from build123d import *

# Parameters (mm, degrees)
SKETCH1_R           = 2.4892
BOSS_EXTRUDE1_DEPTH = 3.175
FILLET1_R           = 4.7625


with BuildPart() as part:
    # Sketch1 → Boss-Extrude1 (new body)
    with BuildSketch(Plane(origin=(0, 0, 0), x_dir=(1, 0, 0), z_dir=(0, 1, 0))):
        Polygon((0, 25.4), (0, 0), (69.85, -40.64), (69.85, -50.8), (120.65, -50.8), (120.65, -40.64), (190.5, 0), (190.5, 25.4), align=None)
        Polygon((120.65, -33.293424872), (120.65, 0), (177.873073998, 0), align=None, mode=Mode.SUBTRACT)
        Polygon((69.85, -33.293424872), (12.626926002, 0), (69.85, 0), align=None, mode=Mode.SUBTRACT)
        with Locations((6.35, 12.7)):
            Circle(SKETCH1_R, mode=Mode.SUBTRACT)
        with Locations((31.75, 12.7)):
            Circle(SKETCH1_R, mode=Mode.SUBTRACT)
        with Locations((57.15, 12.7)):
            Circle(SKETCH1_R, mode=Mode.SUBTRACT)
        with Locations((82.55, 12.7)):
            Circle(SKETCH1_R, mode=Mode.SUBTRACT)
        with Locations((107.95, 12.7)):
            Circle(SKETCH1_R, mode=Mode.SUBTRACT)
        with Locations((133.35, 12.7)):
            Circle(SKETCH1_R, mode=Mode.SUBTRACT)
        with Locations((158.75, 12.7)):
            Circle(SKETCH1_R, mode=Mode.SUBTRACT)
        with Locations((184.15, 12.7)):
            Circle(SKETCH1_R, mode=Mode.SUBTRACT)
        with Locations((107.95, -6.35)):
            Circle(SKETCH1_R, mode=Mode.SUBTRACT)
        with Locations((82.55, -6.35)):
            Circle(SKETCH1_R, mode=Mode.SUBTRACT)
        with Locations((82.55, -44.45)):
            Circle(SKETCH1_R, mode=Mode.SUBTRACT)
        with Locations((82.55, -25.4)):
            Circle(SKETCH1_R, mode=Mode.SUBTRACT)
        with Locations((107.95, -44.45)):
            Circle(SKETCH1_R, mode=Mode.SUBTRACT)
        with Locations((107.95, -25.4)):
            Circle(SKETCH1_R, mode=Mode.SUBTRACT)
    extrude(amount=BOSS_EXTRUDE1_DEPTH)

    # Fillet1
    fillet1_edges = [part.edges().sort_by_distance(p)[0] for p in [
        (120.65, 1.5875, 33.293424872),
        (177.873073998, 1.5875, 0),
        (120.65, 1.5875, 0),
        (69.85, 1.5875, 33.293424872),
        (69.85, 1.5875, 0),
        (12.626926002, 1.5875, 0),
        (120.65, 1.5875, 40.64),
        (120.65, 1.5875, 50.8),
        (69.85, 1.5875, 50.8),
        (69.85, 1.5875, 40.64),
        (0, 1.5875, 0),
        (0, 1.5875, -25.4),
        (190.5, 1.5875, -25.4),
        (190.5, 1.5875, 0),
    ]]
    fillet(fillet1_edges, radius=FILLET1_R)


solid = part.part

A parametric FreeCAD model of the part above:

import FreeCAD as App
import Part
import Sketcher

V = App.Vector
Q = App.Units.Quantity


def edges_at(feature, points):
    """Names of the edges that pass closest to the given points."""
    edges = feature.Shape.Edges
    near = lambda p: min(range(len(edges)), key=lambda i: edges[i].distToShape(Part.Vertex(*p))[0])
    return sorted({f"Edge{near(p) + 1}" for p in points})


def add_polygon(sketch, points):
    """Adds a closed chain of lines whose ends are joined by coincident constraints."""
    first, n = sketch.GeometryCount, len(points)
    for a, b in zip(points, points[1:] + points[:1]):
        sketch.addGeometry(Part.LineSegment(App.Vector(*a, 0), App.Vector(*b, 0)), False)
    for i in range(n):
        sketch.addConstraint(Sketcher.Constraint("Coincident", first + i, 2, first + (i + 1) % n, 1))

doc = App.newDocument("Part")
body = doc.addObject("PartDesign::Body", "Body")

# Sketch on XZ plane
sketch1 = body.newObject("Sketcher::SketchObject", "Sketch")
sketch1.AttachmentSupport = (doc.getObject("XZ_Plane"), [""])
sketch1.MapMode = "FlatFace"
add_polygon(sketch1, [(0, -25.4), (0, 0), (69.8, 40.6), (69.8, 50.8), (120.7, 50.8), (120.7, 40.6), (190.5, 0), (190.5, -25.4)])  # lines 0-7
sketch1.addGeometry(Part.Circle(V(82.5, 44.5, 0), V(0, 0, 1), 2.5), False)  # 8
add_polygon(sketch1, [(69.8, 0), (69.8, 33.3), (12.6, 0)])  # lines 9-11
sketch1.addGeometry(Part.Circle(V(82.5, 25.4, 0), V(0, 0, 1), 2.5), False)  # 12
sketch1.addGeometry(Part.Circle(V(108, 44.5, 0), V(0, 0, 1), 2.5), False)  # 13
sketch1.addGeometry(Part.Circle(V(108, 25.4, 0), V(0, 0, 1), 2.5), False)  # 14
add_polygon(sketch1, [(177.9, 0), (120.7, 33.3), (120.7, 0)])  # lines 15-17
sketch1.addGeometry(Part.Circle(V(82.5, 6.3, 0), V(0, 0, 1), 2.5), False)  # 18
sketch1.addGeometry(Part.Circle(V(6.3, -12.7, 0), V(0, 0, 1), 2.5), False)  # 19
sketch1.addGeometry(Part.Circle(V(31.8, -12.7, 0), V(0, 0, 1), 2.5), False)  # 20
sketch1.addGeometry(Part.Circle(V(57.1, -12.7, 0), V(0, 0, 1), 2.5), False)  # 21
sketch1.addGeometry(Part.Circle(V(82.5, -12.7, 0), V(0, 0, 1), 2.5), False)  # 22
sketch1.addGeometry(Part.Circle(V(108, 6.3, 0), V(0, 0, 1), 2.5), False)  # 23
sketch1.addGeometry(Part.Circle(V(108, -12.7, 0), V(0, 0, 1), 2.5), False)  # 24
sketch1.addGeometry(Part.Circle(V(133.3, -12.7, 0), V(0, 0, 1), 2.5), False)  # 25
sketch1.addGeometry(Part.Circle(V(158.8, -12.7, 0), V(0, 0, 1), 2.5), False)  # 26
sketch1.addGeometry(Part.Circle(V(184.2, -12.7, 0), V(0, 0, 1), 2.5), False)  # 27
sketch1.addConstraint(Sketcher.Constraint("Vertical", 0))
sketch1.addConstraint(Sketcher.Constraint("Vertical", 2))
sketch1.addConstraint(Sketcher.Constraint("Horizontal", 3))
sketch1.addConstraint(Sketcher.Constraint("Vertical", 4))
sketch1.addConstraint(Sketcher.Constraint("Vertical", 6))
sketch1.addConstraint(Sketcher.Constraint("Horizontal", 7))
sketch1.addConstraint(Sketcher.Constraint("Vertical", 9))
sketch1.addConstraint(Sketcher.Constraint("Horizontal", 11))
sketch1.addConstraint(Sketcher.Constraint("Vertical", 16))
sketch1.addConstraint(Sketcher.Constraint("Horizontal", 17))
sketch1.addConstraint(Sketcher.Constraint("Coincident", 0, 2, -1, 1))
sketch1.addConstraint(Sketcher.Constraint("Equal", 8, 12))
sketch1.addConstraint(Sketcher.Constraint("Equal", 12, 13))
sketch1.addConstraint(Sketcher.Constraint("Equal", 13, 14))
sketch1.addConstraint(Sketcher.Constraint("Equal", 14, 18))
sketch1.addConstraint(Sketcher.Constraint("Equal", 18, 19))
sketch1.addConstraint(Sketcher.Constraint("Equal", 19, 20))
sketch1.addConstraint(Sketcher.Constraint("Equal", 20, 21))
sketch1.addConstraint(Sketcher.Constraint("Equal", 21, 22))
sketch1.addConstraint(Sketcher.Constraint("Equal", 22, 23))
sketch1.addConstraint(Sketcher.Constraint("Equal", 23, 24))
sketch1.addConstraint(Sketcher.Constraint("Equal", 24, 25))
sketch1.addConstraint(Sketcher.Constraint("Equal", 25, 26))
sketch1.addConstraint(Sketcher.Constraint("Equal", 26, 27))
sketch1.addConstraint(Sketcher.Constraint("PointOnObject", 5, 2, -1))
sketch1.addConstraint(Sketcher.Constraint("PointOnObject", 10, 2, -1))
sketch1.addConstraint(Sketcher.Constraint("PointOnObject", 16, 2, -1))
sketch1.addConstraint(Sketcher.Constraint("Parallel", 1, 10))
sketch1.addConstraint(Sketcher.Constraint("Parallel", 5, 15))
sketch1.addConstraint(Sketcher.Constraint("Horizontal", 8, 3, 13, 3))
sketch1.addConstraint(Sketcher.Constraint("Horizontal", 12, 3, 14, 3))
sketch1.addConstraint(Sketcher.Constraint("Horizontal", 19, 3, 20, 3))
sketch1.addConstraint(Sketcher.Constraint("Horizontal", 20, 3, 21, 3))
sketch1.addConstraint(Sketcher.Constraint("Horizontal", 21, 3, 22, 3))
sketch1.addConstraint(Sketcher.Constraint("Horizontal", 18, 3, 23, 3))
sketch1.addConstraint(Sketcher.Constraint("Horizontal", 22, 3, 24, 3))
sketch1.addConstraint(Sketcher.Constraint("Horizontal", 24, 3, 25, 3))
sketch1.addConstraint(Sketcher.Constraint("Horizontal", 25, 3, 26, 3))
sketch1.addConstraint(Sketcher.Constraint("Horizontal", 26, 3, 27, 3))
sketch1.addConstraint(Sketcher.Constraint("Horizontal", 1, 2, 4, 2))
sketch1.addConstraint(Sketcher.Constraint("Horizontal", 9, 2, 15, 2))
sketch1.addConstraint(Sketcher.Constraint("Vertical", 8, 3, 12, 3))
sketch1.addConstraint(Sketcher.Constraint("Vertical", 13, 3, 14, 3))
sketch1.addConstraint(Sketcher.Constraint("Vertical", 12, 3, 18, 3))
sketch1.addConstraint(Sketcher.Constraint("Vertical", 18, 3, 22, 3))
sketch1.addConstraint(Sketcher.Constraint("Vertical", 14, 3, 23, 3))
sketch1.addConstraint(Sketcher.Constraint("Vertical", 23, 3, 24, 3))
sketch1.addConstraint(Sketcher.Constraint("Vertical", 2, 2, 9, 2))
sketch1.addConstraint(Sketcher.Constraint("Vertical", 4, 2, 15, 2))
sketch1.addConstraint(Sketcher.Constraint("Equal", 11, 17))
sketch1.addConstraint(Sketcher.Constraint("DistanceX", 3, 1, 3, 2, Q("2 in")))
sketch1.addConstraint(Sketcher.Constraint("DistanceY", 0, 1, 0, 2, Q("1 in")))
sketch1.addConstraint(Sketcher.Constraint("Diameter", 8, Q("0.196 in")))
sketch1.addConstraint(Sketcher.Constraint("DistanceX", 7, 2, 7, 1, Q("7.5 in")))
sketch1.addConstraint(Sketcher.Constraint("DistanceY", 2, 1, 2, 2, Q("0.4 in")))
sketch1.addConstraint(Sketcher.Constraint("DistanceY", -1, 1, 12, 3, Q("1 in")))
sketch1.addConstraint(Sketcher.Constraint("DistanceY", -1, 1, 2, 2, Q("2 in")))
sketch1.addConstraint(Sketcher.Constraint("DistanceX", 8, 3, 13, 3, Q("1 in")))
sketch1.addConstraint(Sketcher.Constraint("DistanceX", 19, 3, 18, 3, Q("3 in")))
sketch1.addConstraint(Sketcher.Constraint("DistanceX", 19, 3, 20, 3, Q("1 in")))
sketch1.addConstraint(Sketcher.Constraint("DistanceX", 20, 3, 21, 3, Q("1 in")))
sketch1.addConstraint(Sketcher.Constraint("DistanceX", 24, 3, 25, 3, Q("1 in")))
sketch1.addConstraint(Sketcher.Constraint("DistanceX", 25, 3, 26, 3, Q("1 in")))
sketch1.addConstraint(Sketcher.Constraint("DistanceX", 26, 3, 27, 3, Q("1 in")))
sketch1.addConstraint(Sketcher.Constraint("DistanceY", 19, 3, -1, 1, Q("0.5 in")))
sketch1.addConstraint(Sketcher.Constraint("DistanceY", 18, 3, 8, 3, Q("1.5 in")))
sketch1.addConstraint(Sketcher.Constraint("DistanceX", 1, 2, 8, 3, Q("0.5 in")))
sketch1.addConstraint(Sketcher.Constraint("DistanceY", -1, 1, 8, 3, Q("1.75 in")))
sketch1.addConstraint(Sketcher.Constraint("Distance", 10, Q("66.203718 mm")))
pad1 = body.newObject("PartDesign::Pad", "Pad")
pad1.Profile = sketch1
pad1.Length = Q("0.125 in")
pad1.Reversed = True
doc.recompute()

fillet = body.newObject("PartDesign::Fillet", "Fillet")
fillet.Base = (pad1, edges_at(pad1, [
    (120.65, 1.587, 33.293),
    (177.873, 1.587, 0),
    (120.65, 1.587, 0),
    (69.85, 1.587, 33.293),
    (69.85, 1.587, 0),
    (12.627, 1.587, 0),
    (120.65, 1.587, 40.64),
    (120.65, 1.587, 50.8),
    (69.85, 1.587, 50.8),
    (69.85, 1.587, 40.64),
    (0, 1.587, 0),
    (0, 1.587, -25.4),
    (190.5, 1.587, -25.4),
    (190.5, 1.587, 0),
]))
fillet.Radius = Q("0.1875 in")

doc.recompute()
